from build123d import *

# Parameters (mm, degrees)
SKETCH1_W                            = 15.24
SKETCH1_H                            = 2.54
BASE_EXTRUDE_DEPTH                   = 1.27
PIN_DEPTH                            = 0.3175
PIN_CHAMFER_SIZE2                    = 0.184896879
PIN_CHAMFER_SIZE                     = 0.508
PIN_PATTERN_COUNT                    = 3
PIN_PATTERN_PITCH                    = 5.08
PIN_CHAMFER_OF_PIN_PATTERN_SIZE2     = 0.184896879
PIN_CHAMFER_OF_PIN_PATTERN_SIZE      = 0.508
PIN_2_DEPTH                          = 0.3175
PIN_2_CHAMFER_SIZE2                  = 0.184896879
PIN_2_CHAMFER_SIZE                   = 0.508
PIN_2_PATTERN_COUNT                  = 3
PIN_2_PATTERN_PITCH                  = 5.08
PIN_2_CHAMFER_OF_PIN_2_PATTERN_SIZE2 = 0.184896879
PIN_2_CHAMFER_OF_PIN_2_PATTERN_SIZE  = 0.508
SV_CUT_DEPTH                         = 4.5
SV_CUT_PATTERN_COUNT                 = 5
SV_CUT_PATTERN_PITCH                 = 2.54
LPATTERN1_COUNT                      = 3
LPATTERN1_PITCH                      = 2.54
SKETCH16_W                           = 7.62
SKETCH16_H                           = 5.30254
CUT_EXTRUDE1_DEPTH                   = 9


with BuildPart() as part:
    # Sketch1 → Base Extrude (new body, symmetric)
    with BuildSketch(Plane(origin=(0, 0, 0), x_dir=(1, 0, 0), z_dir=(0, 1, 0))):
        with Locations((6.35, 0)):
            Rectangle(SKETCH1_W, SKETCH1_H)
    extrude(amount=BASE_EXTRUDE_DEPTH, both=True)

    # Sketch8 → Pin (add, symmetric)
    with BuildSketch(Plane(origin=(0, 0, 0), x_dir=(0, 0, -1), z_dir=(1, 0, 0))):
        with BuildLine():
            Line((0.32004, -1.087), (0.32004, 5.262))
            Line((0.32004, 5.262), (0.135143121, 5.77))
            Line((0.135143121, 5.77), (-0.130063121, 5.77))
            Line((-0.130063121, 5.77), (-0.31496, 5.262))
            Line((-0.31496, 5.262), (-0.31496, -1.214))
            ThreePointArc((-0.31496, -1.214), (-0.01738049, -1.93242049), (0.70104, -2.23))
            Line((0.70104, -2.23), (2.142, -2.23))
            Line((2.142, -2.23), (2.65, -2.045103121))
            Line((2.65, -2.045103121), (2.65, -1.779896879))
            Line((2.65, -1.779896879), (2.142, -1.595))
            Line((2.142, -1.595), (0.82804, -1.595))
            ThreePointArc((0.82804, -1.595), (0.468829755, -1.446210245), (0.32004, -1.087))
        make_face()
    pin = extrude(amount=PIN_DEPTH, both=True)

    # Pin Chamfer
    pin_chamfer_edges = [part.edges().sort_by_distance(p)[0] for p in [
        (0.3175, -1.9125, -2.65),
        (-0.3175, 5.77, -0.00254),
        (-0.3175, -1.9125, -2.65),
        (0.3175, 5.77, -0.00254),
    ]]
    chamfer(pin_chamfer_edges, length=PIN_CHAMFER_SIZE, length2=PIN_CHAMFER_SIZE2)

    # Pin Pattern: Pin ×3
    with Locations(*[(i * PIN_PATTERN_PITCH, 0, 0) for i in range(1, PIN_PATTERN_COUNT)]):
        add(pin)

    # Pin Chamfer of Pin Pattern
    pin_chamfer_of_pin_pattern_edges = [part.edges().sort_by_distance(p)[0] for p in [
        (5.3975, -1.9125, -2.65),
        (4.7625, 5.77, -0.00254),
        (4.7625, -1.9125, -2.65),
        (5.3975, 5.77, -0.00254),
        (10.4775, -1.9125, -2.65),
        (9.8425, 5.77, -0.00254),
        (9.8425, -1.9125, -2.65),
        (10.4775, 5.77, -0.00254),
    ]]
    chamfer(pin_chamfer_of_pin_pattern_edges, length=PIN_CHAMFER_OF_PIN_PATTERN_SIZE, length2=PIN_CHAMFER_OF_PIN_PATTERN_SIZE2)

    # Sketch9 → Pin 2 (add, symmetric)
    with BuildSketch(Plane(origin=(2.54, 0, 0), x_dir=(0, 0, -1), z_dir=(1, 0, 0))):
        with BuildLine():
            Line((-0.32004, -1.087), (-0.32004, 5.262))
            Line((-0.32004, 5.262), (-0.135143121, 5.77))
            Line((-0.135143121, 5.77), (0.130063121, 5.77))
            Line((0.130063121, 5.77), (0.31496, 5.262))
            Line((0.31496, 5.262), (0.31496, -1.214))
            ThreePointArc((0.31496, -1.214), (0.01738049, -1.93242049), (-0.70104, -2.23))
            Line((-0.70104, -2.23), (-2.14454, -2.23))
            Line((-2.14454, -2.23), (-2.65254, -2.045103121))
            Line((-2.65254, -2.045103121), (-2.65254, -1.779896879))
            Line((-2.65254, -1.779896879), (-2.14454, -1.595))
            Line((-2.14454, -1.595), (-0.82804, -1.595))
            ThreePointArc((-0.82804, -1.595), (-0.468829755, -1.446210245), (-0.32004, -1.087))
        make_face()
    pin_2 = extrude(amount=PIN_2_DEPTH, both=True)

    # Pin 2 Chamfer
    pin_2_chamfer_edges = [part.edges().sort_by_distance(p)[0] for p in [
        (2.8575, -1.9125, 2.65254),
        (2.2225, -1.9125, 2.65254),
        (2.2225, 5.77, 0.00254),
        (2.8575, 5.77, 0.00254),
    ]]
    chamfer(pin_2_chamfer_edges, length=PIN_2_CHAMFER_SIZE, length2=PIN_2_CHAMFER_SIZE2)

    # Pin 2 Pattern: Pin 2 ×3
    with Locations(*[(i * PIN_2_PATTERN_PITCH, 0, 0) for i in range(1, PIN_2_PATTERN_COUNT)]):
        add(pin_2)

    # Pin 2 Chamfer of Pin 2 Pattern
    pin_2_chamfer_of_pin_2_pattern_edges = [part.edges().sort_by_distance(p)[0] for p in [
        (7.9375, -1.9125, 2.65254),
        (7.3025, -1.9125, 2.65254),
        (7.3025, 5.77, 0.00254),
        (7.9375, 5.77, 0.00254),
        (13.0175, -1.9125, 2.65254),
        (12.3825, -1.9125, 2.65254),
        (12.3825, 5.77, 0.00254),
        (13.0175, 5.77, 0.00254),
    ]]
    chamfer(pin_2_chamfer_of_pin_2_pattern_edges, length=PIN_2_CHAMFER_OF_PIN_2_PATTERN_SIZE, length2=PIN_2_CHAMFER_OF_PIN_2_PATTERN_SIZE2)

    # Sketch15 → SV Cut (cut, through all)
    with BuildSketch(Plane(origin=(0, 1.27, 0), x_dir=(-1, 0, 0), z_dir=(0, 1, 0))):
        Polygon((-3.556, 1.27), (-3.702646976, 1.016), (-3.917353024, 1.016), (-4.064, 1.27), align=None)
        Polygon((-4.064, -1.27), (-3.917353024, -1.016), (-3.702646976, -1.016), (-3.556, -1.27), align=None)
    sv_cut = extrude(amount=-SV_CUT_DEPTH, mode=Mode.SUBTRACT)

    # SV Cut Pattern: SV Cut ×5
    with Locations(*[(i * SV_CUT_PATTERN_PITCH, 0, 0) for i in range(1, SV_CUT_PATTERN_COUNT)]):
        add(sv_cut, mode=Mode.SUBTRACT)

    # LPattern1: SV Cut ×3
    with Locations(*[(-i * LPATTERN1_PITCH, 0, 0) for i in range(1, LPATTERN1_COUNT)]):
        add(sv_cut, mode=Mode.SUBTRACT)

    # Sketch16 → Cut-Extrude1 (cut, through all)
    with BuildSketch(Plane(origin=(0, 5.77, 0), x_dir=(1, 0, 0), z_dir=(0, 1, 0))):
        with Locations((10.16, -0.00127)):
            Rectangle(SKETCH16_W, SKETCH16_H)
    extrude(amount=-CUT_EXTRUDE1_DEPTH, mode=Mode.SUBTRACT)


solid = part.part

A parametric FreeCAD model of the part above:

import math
import FreeCAD as App
import Part
import Sketcher

V = App.Vector
Q = App.Units.Quantity


def edges_at(feature, points):
    """Names of the edges that pass closest to the given points."""
    edges = feature.Shape.Edges
    near = lambda p: min(range(len(edges)), key=lambda i: edges[i].distToShape(Part.Vertex(*p))[0])
    return sorted({f"Edge{near(p) + 1}" for p in points})


def add_polygon(sketch, points):
    """Adds a closed chain of lines whose ends are joined by coincident constraints."""
    first, n = sketch.GeometryCount, len(points)
    for a, b in zip(points, points[1:] + points[:1]):
        sketch.addGeometry(Part.LineSegment(App.Vector(*a, 0), App.Vector(*b, 0)), False)
    for i in range(n):
        sketch.addConstraint(Sketcher.Constraint("Coincident", first + i, 2, first + (i + 1) % n, 1))

doc = App.newDocument("Part")
body = doc.addObject("PartDesign::Body", "Body")

sketch1 = body.newObject("Sketcher::SketchObject", "Sketch")
sketch1.AttachmentSupport = (doc.getObject("XZ_Plane"), [""])
sketch1.MapMode = "FlatFace"
add_polygon(sketch1, [(-1.3, -1.3), (-1.3, 1.3), (14, 1.3), (14, -1.3)])
sketch1.addConstraint([
    Sketcher.Constraint("Vertical", 0),
    Sketcher.Constraint("Horizontal", 1),
    Sketcher.Constraint("Vertical", 2),
    Sketcher.Constraint("Horizontal", 3),
    Sketcher.Constraint("DistanceX", 1, 1, 1, 2, Q("0.6 in")),
    Sketcher.Constraint("DistanceY", 0, 1, 0, 2, Q("0.1 in")),
    Sketcher.Constraint("DistanceX", 0, 2, -1, 1, Q("0.05 in")),
    Sketcher.Constraint("DistanceY", -1, 1, 0, 2, Q("0.05 in")),
])
pad1 = body.newObject("PartDesign::Pad", "Pad")
pad1.Profile = sketch1
pad1.Length = Q("0.1 in")
pad1.Midplane = True

sketch2 = body.newObject("Sketcher::SketchObject", "Sketch001")
sketch2.AttachmentSupport = (doc.getObject("YZ_Plane"), [""])
sketch2.MapMode = "FlatFace"
sketch2.addGeometry([
    Part.LineSegment(V(-1.09, -0.32, 0), V(5.26, -0.32, 0)),
    Part.LineSegment(V(5.26, -0.32, 0), V(5.77, -0.14, 0)),
    Part.LineSegment(V(5.77, -0.14, 0), V(5.77, 0.13, 0)),
    Part.LineSegment(V(5.77, 0.13, 0), V(5.26, 0.31, 0)),
    Part.LineSegment(V(5.26, 0.31, 0), V(-1.21, 0.31, 0)),
    Part.ArcOfCircle(Part.Circle(V(-1.21, -0.7, 0), V(0, 0, 1), 1.02), math.radians(90), math.radians(180)),
    Part.LineSegment(V(-2.23, -0.7, 0), V(-2.23, -2.14, 0)),
    Part.LineSegment(V(-2.23, -2.14, 0), V(-2.05, -2.65, 0)),
    Part.LineSegment(V(-2.05, -2.65, 0), V(-1.78, -2.65, 0)),
    Part.LineSegment(V(-1.78, -2.65, 0), V(-1.59, -2.14, 0)),
    Part.LineSegment(V(-1.59, -2.14, 0), V(-1.59, -0.83, 0)),
    Part.ArcOfCircle(Part.Circle(V(-1.09, -0.83, 0), V(0, 0, 1), 0.51), math.radians(90), math.radians(180)),
], False)
sketch2.addConstraint([
    Sketcher.Constraint("Coincident", 0, 2, 1, 1),
    Sketcher.Constraint("Coincident", 1, 2, 2, 1),
    Sketcher.Constraint("Coincident", 2, 2, 3, 1),
    Sketcher.Constraint("Coincident", 3, 2, 4, 1),
    Sketcher.Constraint("Tangent", 4, 2, 5, 1),
    Sketcher.Constraint("Tangent", 5, 2, 6, 1),
    Sketcher.Constraint("Coincident", 6, 2, 7, 1),
    Sketcher.Constraint("Coincident", 7, 2, 8, 1),
    Sketcher.Constraint("Coincident", 8, 2, 9, 1),
    Sketcher.Constraint("Coincident", 9, 2, 10, 1),
    Sketcher.Constraint("Tangent", 10, 2, 11, 2),
    Sketcher.Constraint("Tangent", 11, 1, 0, 1),
    Sketcher.Constraint("Horizontal", 0),
    Sketcher.Constraint("Vertical", 2),
    Sketcher.Constraint("Horizontal", 4),
    Sketcher.Constraint("Vertical", 6),
    Sketcher.Constraint("Horizontal", 8),
    Sketcher.Constraint("Vertical", 10),
    Sketcher.Constraint("Perpendicular", 1, 7),
    Sketcher.Constraint("Perpendicular", 3, 9),
    Sketcher.Constraint("Horizontal", 6, 2, 9, 2),
    Sketcher.Constraint("Vertical", 0, 2, 3, 2),
    Sketcher.Constraint("Equal", 8, 2),
    Sketcher.Constraint("Equal", 1, 3),
    Sketcher.Constraint("Equal", 3, 7),
    Sketcher.Constraint("Radius", 5, Q("0.04 in")),
    Sketcher.Constraint("Radius", 11, Q("0.02 in")),
    Sketcher.Constraint("Angle", 1, Q("20 deg")),
    Sketcher.Constraint("DistanceX", 0, 2, 1, 2, Q("0.02 in")),
    Sketcher.Constraint("DistanceX", 5, 3, 11, 3, Q("0.005 in")),
    Sketcher.Constraint("DistanceX", 0, 1, 0, 2, Q("6.349 mm")),
    Sketcher.Constraint("DistanceY", 5, 3, -1, 1, Q("0.0276 in")),
    Sketcher.Constraint("DistanceY", 6, 2, 6, 1, Q("1.44096 mm")),
    Sketcher.Constraint("DistanceX", 5, 3, -1, 1, Q("1.214 mm")),
])
pad2 = body.newObject("PartDesign::Pad", "Pad001")
pad2.Profile = sketch2
pad2.Length = Q("0.025 in")
pad2.Midplane = True
doc.recompute()

chamfer = body.newObject("PartDesign::Chamfer", "Chamfer")
chamfer.Base = (pad2, edges_at(pad2, [
    (0.318, -1.913, -2.65),
    (-0.318, 5.77, -0.003),
    (-0.318, -1.913, -2.65),
    (0.318, 5.77, -0.003),
]))
chamfer.ChamferType = "Two distances"
chamfer.Size = Q("0.02 in")
chamfer.Size2 = 0.184897
doc.recompute()

linearpattern = body.newObject("PartDesign::LinearPattern", "LinearPattern")
linearpattern.Originals = [pad2]
linearpattern.Direction = (doc.getObject("X_Axis"), [""])
linearpattern.Mode = "offset"
linearpattern.Offset = Q("0.2 in")
linearpattern.Occurrences = 3
body.Tip = linearpattern
doc.recompute()

chamfer2 = body.newObject("PartDesign::Chamfer", "Chamfer001")
chamfer2.Base = (linearpattern, edges_at(linearpattern, [
    (5.397, -1.913, -2.65),
    (4.763, 5.77, -0.003),
    (4.763, -1.913, -2.65),
    (5.397, 5.77, -0.003),
    (10.477, -1.913, -2.65),
    (9.842, 5.77, -0.003),
    (9.842, -1.913, -2.65),
    (10.477, 5.77, -0.003),
]))
chamfer2.ChamferType = "Two distances"
chamfer2.Size = Q("0.02 in")
chamfer2.Size2 = 0.184897

sketch3 = body.newObject("Sketcher::SketchObject", "Sketch002")
sketch3.AttachmentSupport = (doc.getObject("YZ_Plane"), [""])
sketch3.MapMode = "FlatFace"
sketch3.AttachmentOffset = App.Placement(V(0, 0, 0.1 * 25.4), App.Rotation())
sketch3.addGeometry([
    Part.LineSegment(V(5.26, 0.32, 0), V(-1.09, 0.32, 0)),
    Part.ArcOfCircle(Part.Circle(V(-1.09, 0.83, 0), V(0, 0, 1), 0.51), math.radians(180), math.radians(270)),
    Part.LineSegment(V(-1.59, 0.83, 0), V(-1.59, 2.14, 0)),
    Part.LineSegment(V(-1.59, 2.14, 0), V(-1.78, 2.65, 0)),
    Part.LineSegment(V(-1.78, 2.65, 0), V(-2.05, 2.65, 0)),
    Part.LineSegment(V(-2.05, 2.65, 0), V(-2.23, 2.14, 0)),
    Part.LineSegment(V(-2.23, 2.14, 0), V(-2.23, 0.7, 0)),
    Part.ArcOfCircle(Part.Circle(V(-1.21, 0.7, 0), V(0, 0, 1), 1.02), math.radians(180), math.radians(270)),
    Part.LineSegment(V(-1.21, -0.31, 0), V(5.26, -0.31, 0)),
    Part.LineSegment(V(5.26, -0.31, 0), V(5.77, -0.13, 0)),
    Part.LineSegment(V(5.77, -0.13, 0), V(5.77, 0.14, 0)),
    Part.LineSegment(V(5.77, 0.14, 0), V(5.26, 0.32, 0)),
], False)
sketch3.addConstraint([
    Sketcher.Constraint("Tangent", 0, 2, 1, 2),
    Sketcher.Constraint("Tangent", 1, 1, 2, 1),
    Sketcher.Constraint("Coincident", 2, 2, 3, 1),
    Sketcher.Constraint("Coincident", 3, 2, 4, 1),
    Sketcher.Constraint("Coincident", 4, 2, 5, 1),
    Sketcher.Constraint("Coincident", 5, 2, 6, 1),
    Sketcher.Constraint("Tangent", 6, 2, 7, 1),
    Sketcher.Constraint("Tangent", 7, 2, 8, 1),
    Sketcher.Constraint("Coincident", 8, 2, 9, 1),
    Sketcher.Constraint("Coincident", 9, 2, 10, 1),
    Sketcher.Constraint("Coincident", 10, 2, 11, 1),
    Sketcher.Constraint("Coincident", 11, 2, 0, 1),
    Sketcher.Constraint("Horizontal", 0),
    Sketcher.Constraint("Vertical", 2),
    Sketcher.Constraint("Horizontal", 4),
    Sketcher.Constraint("Vertical", 6),
    Sketcher.Constraint("Horizontal", 8),
    Sketcher.Constraint("Vertical", 10),
    Sketcher.Constraint("Perpendicular", 3, 9),
    Sketcher.Constraint("Perpendicular", 5, 11),
    Sketcher.Constraint("Horizontal", 2, 2, 5, 2),
    Sketcher.Constraint("Vertical", 8, 2, 11, 2),
    Sketcher.Constraint("Equal", 4, 10),
    Sketcher.Constraint("Equal", 3, 5),
    Sketcher.Constraint("Equal", 5, 9),
    Sketcher.Constraint("Radius", 1, Q("0.02 in")),
    Sketcher.Constraint("Radius", 7, Q("0.04 in")),
    Sketcher.Constraint("Angle", 3, Q("110 deg")),
    Sketcher.Constraint("DistanceY", 2, 2, 3, 2, Q("0.02 in")),
    Sketcher.Constraint("DistanceX", 7, 3, 1, 3, Q("0.005 in")),
    Sketcher.Constraint("DistanceX", 0, 2, 0, 1, Q("6.349 mm")),
    Sketcher.Constraint("DistanceY", 2, 1, 2, 2, Q("1.3165 mm")),
    Sketcher.Constraint("DistanceY", -1, 1, 1, 3, Q("0.0326 in")),
    Sketcher.Constraint("DistanceX", 1, 3, -1, 1, Q("1.087 mm")),
])
pad3 = body.newObject("PartDesign::Pad", "Pad002")
pad3.Profile = sketch3
pad3.Length = Q("0.025 in")
pad3.Midplane = True
doc.recompute()

chamfer3 = body.newObject("PartDesign::Chamfer", "Chamfer002")
chamfer3.Base = (pad3, edges_at(pad3, [
    (2.857, -1.913, 2.653),
    (2.223, -1.913, 2.653),
    (2.223, 5.77, 0.003),
    (2.857, 5.77, 0.003),
]))
chamfer3.ChamferType = "Two distances"
chamfer3.Size = Q("0.02 in")
chamfer3.Size2 = 0.184897
doc.recompute()

linearpattern2 = body.newObject("PartDesign::LinearPattern", "LinearPattern001")
linearpattern2.Originals = [pad3]
linearpattern2.Direction = (doc.getObject("X_Axis"), [""])
linearpattern2.Mode = "offset"
linearpattern2.Offset = Q("0.2 in")
linearpattern2.Occurrences = 3
body.Tip = linearpattern2
doc.recompute()

chamfer4 = body.newObject("PartDesign::Chamfer", "Chamfer003")
chamfer4.Base = (linearpattern2, edges_at(linearpattern2, [
    (7.938, -1.913, 2.653),
    (7.303, -1.913, 2.653),
    (7.303, 5.77, 0.003),
    (7.938, 5.77, 0.003),
    (13.018, -1.913, 2.653),
    (12.383, -1.913, 2.653),
    (12.383, 5.77, 0.003),
    (13.018, 5.77, 0.003),
]))
chamfer4.ChamferType = "Two distances"
chamfer4.Size = Q("0.02 in")
chamfer4.Size2 = 0.184897

sketch4 = body.newObject("Sketcher::SketchObject", "Sketch003")
sketch4.AttachmentSupport = (doc.getObject("XZ_Plane"), [""])
sketch4.MapMode = "FlatFace"
sketch4.AttachmentOffset = App.Placement(V(0, 0, -0.05 * 25.4), App.Rotation())
add_polygon(sketch4, [(3.7, 1.02), (3.56, 1.27), (4.06, 1.27), (3.92, 1.02)])
add_polygon(sketch4, [(3.92, -1.02), (4.06, -1.27), (3.56, -1.27), (3.7, -1.02)])
sketch4.addConstraint([
    Sketcher.Constraint("Horizontal", 1),
    Sketcher.Constraint("Horizontal", 3),
    Sketcher.Constraint("Horizontal", 5),
    Sketcher.Constraint("Horizontal", 7),
    Sketcher.Constraint("Symmetric", 1, 2, 4, 2, -1),
    Sketcher.Constraint("Symmetric", 3, 2, 6, 2, -1),
    Sketcher.Constraint("Parallel", 0, 4),
    Sketcher.Constraint("Parallel", 2, 6),
    Sketcher.Constraint("Vertical", 0, 2, 5, 2),
    Sketcher.Constraint("Angle", 0, Q("120.000001 deg")),
    Sketcher.Constraint("DistanceX", 1, 1, 1, 2, Q("0.02 in")),
    Sketcher.Constraint("DistanceY", 4, 2, 1, 2, Q("0.1 in")),
    Sketcher.Constraint("DistanceX", -1, 1, 0, 2, Q("0.14 in")),
    Sketcher.Constraint("DistanceY", -1, 1, 2, 2, Q("0.04 in")),
])
pocket1 = body.newObject("PartDesign::Pocket", "Pocket")
pocket1.Profile = sketch4
pocket1.Type = "ThroughAll"
pocket1.Reversed = True
doc.recompute()

linearpattern3 = body.newObject("PartDesign::LinearPattern", "LinearPattern002")
linearpattern3.Originals = [pocket1]
linearpattern3.Direction = (doc.getObject("X_Axis"), [""])
linearpattern3.Mode = "offset"
linearpattern3.Offset = Q("0.1 in")
linearpattern3.Occurrences = 5
body.Tip = linearpattern3
doc.recompute()

linearpattern4 = body.newObject("PartDesign::LinearPattern", "LinearPattern003")
linearpattern4.Originals = [pocket1]
linearpattern4.Direction = (doc.getObject("X_Axis"), [""])
linearpattern4.Mode = "offset"
linearpattern4.Offset = Q("0.1 in")
linearpattern4.Occurrences = 3
linearpattern4.Reversed = True
body.Tip = linearpattern4

sketch5 = body.newObject("Sketcher::SketchObject", "Sketch004")
sketch5.AttachmentSupport = (doc.getObject("XZ_Plane"), [""])
sketch5.MapMode = "FlatFace"
sketch5.AttachmentOffset = App.Placement(V(0, 0, -5.77), App.Rotation())
add_polygon(sketch5, [(6, -3), (6, 3), (14, 3), (14, -3)])
sketch5.addConstraint([
    Sketcher.Constraint("Vertical", 0),
    Sketcher.Constraint("Horizontal", 1),
    Sketcher.Constraint("Vertical", 2),
    Sketcher.Constraint("Horizontal", 3),
    Sketcher.Constraint("DistanceX", 1, 1, 1, 2, Q("0.3 in")),
    Sketcher.Constraint("DistanceX", -1, 1, 0, 2, Q("0.25 in")),
    Sketcher.Constraint("DistanceY", 0, 1, 0, 2, Q("5.30254 mm")),
    Sketcher.Constraint("DistanceY", 2, 2, -1, 1, Q("2.65 mm")),
])
pocket2 = body.newObject("PartDesign::Pocket", "Pocket001")
pocket2.Profile = sketch5
pocket2.Type = "ThroughAll"
pocket2.Reversed = True

doc.recompute()
